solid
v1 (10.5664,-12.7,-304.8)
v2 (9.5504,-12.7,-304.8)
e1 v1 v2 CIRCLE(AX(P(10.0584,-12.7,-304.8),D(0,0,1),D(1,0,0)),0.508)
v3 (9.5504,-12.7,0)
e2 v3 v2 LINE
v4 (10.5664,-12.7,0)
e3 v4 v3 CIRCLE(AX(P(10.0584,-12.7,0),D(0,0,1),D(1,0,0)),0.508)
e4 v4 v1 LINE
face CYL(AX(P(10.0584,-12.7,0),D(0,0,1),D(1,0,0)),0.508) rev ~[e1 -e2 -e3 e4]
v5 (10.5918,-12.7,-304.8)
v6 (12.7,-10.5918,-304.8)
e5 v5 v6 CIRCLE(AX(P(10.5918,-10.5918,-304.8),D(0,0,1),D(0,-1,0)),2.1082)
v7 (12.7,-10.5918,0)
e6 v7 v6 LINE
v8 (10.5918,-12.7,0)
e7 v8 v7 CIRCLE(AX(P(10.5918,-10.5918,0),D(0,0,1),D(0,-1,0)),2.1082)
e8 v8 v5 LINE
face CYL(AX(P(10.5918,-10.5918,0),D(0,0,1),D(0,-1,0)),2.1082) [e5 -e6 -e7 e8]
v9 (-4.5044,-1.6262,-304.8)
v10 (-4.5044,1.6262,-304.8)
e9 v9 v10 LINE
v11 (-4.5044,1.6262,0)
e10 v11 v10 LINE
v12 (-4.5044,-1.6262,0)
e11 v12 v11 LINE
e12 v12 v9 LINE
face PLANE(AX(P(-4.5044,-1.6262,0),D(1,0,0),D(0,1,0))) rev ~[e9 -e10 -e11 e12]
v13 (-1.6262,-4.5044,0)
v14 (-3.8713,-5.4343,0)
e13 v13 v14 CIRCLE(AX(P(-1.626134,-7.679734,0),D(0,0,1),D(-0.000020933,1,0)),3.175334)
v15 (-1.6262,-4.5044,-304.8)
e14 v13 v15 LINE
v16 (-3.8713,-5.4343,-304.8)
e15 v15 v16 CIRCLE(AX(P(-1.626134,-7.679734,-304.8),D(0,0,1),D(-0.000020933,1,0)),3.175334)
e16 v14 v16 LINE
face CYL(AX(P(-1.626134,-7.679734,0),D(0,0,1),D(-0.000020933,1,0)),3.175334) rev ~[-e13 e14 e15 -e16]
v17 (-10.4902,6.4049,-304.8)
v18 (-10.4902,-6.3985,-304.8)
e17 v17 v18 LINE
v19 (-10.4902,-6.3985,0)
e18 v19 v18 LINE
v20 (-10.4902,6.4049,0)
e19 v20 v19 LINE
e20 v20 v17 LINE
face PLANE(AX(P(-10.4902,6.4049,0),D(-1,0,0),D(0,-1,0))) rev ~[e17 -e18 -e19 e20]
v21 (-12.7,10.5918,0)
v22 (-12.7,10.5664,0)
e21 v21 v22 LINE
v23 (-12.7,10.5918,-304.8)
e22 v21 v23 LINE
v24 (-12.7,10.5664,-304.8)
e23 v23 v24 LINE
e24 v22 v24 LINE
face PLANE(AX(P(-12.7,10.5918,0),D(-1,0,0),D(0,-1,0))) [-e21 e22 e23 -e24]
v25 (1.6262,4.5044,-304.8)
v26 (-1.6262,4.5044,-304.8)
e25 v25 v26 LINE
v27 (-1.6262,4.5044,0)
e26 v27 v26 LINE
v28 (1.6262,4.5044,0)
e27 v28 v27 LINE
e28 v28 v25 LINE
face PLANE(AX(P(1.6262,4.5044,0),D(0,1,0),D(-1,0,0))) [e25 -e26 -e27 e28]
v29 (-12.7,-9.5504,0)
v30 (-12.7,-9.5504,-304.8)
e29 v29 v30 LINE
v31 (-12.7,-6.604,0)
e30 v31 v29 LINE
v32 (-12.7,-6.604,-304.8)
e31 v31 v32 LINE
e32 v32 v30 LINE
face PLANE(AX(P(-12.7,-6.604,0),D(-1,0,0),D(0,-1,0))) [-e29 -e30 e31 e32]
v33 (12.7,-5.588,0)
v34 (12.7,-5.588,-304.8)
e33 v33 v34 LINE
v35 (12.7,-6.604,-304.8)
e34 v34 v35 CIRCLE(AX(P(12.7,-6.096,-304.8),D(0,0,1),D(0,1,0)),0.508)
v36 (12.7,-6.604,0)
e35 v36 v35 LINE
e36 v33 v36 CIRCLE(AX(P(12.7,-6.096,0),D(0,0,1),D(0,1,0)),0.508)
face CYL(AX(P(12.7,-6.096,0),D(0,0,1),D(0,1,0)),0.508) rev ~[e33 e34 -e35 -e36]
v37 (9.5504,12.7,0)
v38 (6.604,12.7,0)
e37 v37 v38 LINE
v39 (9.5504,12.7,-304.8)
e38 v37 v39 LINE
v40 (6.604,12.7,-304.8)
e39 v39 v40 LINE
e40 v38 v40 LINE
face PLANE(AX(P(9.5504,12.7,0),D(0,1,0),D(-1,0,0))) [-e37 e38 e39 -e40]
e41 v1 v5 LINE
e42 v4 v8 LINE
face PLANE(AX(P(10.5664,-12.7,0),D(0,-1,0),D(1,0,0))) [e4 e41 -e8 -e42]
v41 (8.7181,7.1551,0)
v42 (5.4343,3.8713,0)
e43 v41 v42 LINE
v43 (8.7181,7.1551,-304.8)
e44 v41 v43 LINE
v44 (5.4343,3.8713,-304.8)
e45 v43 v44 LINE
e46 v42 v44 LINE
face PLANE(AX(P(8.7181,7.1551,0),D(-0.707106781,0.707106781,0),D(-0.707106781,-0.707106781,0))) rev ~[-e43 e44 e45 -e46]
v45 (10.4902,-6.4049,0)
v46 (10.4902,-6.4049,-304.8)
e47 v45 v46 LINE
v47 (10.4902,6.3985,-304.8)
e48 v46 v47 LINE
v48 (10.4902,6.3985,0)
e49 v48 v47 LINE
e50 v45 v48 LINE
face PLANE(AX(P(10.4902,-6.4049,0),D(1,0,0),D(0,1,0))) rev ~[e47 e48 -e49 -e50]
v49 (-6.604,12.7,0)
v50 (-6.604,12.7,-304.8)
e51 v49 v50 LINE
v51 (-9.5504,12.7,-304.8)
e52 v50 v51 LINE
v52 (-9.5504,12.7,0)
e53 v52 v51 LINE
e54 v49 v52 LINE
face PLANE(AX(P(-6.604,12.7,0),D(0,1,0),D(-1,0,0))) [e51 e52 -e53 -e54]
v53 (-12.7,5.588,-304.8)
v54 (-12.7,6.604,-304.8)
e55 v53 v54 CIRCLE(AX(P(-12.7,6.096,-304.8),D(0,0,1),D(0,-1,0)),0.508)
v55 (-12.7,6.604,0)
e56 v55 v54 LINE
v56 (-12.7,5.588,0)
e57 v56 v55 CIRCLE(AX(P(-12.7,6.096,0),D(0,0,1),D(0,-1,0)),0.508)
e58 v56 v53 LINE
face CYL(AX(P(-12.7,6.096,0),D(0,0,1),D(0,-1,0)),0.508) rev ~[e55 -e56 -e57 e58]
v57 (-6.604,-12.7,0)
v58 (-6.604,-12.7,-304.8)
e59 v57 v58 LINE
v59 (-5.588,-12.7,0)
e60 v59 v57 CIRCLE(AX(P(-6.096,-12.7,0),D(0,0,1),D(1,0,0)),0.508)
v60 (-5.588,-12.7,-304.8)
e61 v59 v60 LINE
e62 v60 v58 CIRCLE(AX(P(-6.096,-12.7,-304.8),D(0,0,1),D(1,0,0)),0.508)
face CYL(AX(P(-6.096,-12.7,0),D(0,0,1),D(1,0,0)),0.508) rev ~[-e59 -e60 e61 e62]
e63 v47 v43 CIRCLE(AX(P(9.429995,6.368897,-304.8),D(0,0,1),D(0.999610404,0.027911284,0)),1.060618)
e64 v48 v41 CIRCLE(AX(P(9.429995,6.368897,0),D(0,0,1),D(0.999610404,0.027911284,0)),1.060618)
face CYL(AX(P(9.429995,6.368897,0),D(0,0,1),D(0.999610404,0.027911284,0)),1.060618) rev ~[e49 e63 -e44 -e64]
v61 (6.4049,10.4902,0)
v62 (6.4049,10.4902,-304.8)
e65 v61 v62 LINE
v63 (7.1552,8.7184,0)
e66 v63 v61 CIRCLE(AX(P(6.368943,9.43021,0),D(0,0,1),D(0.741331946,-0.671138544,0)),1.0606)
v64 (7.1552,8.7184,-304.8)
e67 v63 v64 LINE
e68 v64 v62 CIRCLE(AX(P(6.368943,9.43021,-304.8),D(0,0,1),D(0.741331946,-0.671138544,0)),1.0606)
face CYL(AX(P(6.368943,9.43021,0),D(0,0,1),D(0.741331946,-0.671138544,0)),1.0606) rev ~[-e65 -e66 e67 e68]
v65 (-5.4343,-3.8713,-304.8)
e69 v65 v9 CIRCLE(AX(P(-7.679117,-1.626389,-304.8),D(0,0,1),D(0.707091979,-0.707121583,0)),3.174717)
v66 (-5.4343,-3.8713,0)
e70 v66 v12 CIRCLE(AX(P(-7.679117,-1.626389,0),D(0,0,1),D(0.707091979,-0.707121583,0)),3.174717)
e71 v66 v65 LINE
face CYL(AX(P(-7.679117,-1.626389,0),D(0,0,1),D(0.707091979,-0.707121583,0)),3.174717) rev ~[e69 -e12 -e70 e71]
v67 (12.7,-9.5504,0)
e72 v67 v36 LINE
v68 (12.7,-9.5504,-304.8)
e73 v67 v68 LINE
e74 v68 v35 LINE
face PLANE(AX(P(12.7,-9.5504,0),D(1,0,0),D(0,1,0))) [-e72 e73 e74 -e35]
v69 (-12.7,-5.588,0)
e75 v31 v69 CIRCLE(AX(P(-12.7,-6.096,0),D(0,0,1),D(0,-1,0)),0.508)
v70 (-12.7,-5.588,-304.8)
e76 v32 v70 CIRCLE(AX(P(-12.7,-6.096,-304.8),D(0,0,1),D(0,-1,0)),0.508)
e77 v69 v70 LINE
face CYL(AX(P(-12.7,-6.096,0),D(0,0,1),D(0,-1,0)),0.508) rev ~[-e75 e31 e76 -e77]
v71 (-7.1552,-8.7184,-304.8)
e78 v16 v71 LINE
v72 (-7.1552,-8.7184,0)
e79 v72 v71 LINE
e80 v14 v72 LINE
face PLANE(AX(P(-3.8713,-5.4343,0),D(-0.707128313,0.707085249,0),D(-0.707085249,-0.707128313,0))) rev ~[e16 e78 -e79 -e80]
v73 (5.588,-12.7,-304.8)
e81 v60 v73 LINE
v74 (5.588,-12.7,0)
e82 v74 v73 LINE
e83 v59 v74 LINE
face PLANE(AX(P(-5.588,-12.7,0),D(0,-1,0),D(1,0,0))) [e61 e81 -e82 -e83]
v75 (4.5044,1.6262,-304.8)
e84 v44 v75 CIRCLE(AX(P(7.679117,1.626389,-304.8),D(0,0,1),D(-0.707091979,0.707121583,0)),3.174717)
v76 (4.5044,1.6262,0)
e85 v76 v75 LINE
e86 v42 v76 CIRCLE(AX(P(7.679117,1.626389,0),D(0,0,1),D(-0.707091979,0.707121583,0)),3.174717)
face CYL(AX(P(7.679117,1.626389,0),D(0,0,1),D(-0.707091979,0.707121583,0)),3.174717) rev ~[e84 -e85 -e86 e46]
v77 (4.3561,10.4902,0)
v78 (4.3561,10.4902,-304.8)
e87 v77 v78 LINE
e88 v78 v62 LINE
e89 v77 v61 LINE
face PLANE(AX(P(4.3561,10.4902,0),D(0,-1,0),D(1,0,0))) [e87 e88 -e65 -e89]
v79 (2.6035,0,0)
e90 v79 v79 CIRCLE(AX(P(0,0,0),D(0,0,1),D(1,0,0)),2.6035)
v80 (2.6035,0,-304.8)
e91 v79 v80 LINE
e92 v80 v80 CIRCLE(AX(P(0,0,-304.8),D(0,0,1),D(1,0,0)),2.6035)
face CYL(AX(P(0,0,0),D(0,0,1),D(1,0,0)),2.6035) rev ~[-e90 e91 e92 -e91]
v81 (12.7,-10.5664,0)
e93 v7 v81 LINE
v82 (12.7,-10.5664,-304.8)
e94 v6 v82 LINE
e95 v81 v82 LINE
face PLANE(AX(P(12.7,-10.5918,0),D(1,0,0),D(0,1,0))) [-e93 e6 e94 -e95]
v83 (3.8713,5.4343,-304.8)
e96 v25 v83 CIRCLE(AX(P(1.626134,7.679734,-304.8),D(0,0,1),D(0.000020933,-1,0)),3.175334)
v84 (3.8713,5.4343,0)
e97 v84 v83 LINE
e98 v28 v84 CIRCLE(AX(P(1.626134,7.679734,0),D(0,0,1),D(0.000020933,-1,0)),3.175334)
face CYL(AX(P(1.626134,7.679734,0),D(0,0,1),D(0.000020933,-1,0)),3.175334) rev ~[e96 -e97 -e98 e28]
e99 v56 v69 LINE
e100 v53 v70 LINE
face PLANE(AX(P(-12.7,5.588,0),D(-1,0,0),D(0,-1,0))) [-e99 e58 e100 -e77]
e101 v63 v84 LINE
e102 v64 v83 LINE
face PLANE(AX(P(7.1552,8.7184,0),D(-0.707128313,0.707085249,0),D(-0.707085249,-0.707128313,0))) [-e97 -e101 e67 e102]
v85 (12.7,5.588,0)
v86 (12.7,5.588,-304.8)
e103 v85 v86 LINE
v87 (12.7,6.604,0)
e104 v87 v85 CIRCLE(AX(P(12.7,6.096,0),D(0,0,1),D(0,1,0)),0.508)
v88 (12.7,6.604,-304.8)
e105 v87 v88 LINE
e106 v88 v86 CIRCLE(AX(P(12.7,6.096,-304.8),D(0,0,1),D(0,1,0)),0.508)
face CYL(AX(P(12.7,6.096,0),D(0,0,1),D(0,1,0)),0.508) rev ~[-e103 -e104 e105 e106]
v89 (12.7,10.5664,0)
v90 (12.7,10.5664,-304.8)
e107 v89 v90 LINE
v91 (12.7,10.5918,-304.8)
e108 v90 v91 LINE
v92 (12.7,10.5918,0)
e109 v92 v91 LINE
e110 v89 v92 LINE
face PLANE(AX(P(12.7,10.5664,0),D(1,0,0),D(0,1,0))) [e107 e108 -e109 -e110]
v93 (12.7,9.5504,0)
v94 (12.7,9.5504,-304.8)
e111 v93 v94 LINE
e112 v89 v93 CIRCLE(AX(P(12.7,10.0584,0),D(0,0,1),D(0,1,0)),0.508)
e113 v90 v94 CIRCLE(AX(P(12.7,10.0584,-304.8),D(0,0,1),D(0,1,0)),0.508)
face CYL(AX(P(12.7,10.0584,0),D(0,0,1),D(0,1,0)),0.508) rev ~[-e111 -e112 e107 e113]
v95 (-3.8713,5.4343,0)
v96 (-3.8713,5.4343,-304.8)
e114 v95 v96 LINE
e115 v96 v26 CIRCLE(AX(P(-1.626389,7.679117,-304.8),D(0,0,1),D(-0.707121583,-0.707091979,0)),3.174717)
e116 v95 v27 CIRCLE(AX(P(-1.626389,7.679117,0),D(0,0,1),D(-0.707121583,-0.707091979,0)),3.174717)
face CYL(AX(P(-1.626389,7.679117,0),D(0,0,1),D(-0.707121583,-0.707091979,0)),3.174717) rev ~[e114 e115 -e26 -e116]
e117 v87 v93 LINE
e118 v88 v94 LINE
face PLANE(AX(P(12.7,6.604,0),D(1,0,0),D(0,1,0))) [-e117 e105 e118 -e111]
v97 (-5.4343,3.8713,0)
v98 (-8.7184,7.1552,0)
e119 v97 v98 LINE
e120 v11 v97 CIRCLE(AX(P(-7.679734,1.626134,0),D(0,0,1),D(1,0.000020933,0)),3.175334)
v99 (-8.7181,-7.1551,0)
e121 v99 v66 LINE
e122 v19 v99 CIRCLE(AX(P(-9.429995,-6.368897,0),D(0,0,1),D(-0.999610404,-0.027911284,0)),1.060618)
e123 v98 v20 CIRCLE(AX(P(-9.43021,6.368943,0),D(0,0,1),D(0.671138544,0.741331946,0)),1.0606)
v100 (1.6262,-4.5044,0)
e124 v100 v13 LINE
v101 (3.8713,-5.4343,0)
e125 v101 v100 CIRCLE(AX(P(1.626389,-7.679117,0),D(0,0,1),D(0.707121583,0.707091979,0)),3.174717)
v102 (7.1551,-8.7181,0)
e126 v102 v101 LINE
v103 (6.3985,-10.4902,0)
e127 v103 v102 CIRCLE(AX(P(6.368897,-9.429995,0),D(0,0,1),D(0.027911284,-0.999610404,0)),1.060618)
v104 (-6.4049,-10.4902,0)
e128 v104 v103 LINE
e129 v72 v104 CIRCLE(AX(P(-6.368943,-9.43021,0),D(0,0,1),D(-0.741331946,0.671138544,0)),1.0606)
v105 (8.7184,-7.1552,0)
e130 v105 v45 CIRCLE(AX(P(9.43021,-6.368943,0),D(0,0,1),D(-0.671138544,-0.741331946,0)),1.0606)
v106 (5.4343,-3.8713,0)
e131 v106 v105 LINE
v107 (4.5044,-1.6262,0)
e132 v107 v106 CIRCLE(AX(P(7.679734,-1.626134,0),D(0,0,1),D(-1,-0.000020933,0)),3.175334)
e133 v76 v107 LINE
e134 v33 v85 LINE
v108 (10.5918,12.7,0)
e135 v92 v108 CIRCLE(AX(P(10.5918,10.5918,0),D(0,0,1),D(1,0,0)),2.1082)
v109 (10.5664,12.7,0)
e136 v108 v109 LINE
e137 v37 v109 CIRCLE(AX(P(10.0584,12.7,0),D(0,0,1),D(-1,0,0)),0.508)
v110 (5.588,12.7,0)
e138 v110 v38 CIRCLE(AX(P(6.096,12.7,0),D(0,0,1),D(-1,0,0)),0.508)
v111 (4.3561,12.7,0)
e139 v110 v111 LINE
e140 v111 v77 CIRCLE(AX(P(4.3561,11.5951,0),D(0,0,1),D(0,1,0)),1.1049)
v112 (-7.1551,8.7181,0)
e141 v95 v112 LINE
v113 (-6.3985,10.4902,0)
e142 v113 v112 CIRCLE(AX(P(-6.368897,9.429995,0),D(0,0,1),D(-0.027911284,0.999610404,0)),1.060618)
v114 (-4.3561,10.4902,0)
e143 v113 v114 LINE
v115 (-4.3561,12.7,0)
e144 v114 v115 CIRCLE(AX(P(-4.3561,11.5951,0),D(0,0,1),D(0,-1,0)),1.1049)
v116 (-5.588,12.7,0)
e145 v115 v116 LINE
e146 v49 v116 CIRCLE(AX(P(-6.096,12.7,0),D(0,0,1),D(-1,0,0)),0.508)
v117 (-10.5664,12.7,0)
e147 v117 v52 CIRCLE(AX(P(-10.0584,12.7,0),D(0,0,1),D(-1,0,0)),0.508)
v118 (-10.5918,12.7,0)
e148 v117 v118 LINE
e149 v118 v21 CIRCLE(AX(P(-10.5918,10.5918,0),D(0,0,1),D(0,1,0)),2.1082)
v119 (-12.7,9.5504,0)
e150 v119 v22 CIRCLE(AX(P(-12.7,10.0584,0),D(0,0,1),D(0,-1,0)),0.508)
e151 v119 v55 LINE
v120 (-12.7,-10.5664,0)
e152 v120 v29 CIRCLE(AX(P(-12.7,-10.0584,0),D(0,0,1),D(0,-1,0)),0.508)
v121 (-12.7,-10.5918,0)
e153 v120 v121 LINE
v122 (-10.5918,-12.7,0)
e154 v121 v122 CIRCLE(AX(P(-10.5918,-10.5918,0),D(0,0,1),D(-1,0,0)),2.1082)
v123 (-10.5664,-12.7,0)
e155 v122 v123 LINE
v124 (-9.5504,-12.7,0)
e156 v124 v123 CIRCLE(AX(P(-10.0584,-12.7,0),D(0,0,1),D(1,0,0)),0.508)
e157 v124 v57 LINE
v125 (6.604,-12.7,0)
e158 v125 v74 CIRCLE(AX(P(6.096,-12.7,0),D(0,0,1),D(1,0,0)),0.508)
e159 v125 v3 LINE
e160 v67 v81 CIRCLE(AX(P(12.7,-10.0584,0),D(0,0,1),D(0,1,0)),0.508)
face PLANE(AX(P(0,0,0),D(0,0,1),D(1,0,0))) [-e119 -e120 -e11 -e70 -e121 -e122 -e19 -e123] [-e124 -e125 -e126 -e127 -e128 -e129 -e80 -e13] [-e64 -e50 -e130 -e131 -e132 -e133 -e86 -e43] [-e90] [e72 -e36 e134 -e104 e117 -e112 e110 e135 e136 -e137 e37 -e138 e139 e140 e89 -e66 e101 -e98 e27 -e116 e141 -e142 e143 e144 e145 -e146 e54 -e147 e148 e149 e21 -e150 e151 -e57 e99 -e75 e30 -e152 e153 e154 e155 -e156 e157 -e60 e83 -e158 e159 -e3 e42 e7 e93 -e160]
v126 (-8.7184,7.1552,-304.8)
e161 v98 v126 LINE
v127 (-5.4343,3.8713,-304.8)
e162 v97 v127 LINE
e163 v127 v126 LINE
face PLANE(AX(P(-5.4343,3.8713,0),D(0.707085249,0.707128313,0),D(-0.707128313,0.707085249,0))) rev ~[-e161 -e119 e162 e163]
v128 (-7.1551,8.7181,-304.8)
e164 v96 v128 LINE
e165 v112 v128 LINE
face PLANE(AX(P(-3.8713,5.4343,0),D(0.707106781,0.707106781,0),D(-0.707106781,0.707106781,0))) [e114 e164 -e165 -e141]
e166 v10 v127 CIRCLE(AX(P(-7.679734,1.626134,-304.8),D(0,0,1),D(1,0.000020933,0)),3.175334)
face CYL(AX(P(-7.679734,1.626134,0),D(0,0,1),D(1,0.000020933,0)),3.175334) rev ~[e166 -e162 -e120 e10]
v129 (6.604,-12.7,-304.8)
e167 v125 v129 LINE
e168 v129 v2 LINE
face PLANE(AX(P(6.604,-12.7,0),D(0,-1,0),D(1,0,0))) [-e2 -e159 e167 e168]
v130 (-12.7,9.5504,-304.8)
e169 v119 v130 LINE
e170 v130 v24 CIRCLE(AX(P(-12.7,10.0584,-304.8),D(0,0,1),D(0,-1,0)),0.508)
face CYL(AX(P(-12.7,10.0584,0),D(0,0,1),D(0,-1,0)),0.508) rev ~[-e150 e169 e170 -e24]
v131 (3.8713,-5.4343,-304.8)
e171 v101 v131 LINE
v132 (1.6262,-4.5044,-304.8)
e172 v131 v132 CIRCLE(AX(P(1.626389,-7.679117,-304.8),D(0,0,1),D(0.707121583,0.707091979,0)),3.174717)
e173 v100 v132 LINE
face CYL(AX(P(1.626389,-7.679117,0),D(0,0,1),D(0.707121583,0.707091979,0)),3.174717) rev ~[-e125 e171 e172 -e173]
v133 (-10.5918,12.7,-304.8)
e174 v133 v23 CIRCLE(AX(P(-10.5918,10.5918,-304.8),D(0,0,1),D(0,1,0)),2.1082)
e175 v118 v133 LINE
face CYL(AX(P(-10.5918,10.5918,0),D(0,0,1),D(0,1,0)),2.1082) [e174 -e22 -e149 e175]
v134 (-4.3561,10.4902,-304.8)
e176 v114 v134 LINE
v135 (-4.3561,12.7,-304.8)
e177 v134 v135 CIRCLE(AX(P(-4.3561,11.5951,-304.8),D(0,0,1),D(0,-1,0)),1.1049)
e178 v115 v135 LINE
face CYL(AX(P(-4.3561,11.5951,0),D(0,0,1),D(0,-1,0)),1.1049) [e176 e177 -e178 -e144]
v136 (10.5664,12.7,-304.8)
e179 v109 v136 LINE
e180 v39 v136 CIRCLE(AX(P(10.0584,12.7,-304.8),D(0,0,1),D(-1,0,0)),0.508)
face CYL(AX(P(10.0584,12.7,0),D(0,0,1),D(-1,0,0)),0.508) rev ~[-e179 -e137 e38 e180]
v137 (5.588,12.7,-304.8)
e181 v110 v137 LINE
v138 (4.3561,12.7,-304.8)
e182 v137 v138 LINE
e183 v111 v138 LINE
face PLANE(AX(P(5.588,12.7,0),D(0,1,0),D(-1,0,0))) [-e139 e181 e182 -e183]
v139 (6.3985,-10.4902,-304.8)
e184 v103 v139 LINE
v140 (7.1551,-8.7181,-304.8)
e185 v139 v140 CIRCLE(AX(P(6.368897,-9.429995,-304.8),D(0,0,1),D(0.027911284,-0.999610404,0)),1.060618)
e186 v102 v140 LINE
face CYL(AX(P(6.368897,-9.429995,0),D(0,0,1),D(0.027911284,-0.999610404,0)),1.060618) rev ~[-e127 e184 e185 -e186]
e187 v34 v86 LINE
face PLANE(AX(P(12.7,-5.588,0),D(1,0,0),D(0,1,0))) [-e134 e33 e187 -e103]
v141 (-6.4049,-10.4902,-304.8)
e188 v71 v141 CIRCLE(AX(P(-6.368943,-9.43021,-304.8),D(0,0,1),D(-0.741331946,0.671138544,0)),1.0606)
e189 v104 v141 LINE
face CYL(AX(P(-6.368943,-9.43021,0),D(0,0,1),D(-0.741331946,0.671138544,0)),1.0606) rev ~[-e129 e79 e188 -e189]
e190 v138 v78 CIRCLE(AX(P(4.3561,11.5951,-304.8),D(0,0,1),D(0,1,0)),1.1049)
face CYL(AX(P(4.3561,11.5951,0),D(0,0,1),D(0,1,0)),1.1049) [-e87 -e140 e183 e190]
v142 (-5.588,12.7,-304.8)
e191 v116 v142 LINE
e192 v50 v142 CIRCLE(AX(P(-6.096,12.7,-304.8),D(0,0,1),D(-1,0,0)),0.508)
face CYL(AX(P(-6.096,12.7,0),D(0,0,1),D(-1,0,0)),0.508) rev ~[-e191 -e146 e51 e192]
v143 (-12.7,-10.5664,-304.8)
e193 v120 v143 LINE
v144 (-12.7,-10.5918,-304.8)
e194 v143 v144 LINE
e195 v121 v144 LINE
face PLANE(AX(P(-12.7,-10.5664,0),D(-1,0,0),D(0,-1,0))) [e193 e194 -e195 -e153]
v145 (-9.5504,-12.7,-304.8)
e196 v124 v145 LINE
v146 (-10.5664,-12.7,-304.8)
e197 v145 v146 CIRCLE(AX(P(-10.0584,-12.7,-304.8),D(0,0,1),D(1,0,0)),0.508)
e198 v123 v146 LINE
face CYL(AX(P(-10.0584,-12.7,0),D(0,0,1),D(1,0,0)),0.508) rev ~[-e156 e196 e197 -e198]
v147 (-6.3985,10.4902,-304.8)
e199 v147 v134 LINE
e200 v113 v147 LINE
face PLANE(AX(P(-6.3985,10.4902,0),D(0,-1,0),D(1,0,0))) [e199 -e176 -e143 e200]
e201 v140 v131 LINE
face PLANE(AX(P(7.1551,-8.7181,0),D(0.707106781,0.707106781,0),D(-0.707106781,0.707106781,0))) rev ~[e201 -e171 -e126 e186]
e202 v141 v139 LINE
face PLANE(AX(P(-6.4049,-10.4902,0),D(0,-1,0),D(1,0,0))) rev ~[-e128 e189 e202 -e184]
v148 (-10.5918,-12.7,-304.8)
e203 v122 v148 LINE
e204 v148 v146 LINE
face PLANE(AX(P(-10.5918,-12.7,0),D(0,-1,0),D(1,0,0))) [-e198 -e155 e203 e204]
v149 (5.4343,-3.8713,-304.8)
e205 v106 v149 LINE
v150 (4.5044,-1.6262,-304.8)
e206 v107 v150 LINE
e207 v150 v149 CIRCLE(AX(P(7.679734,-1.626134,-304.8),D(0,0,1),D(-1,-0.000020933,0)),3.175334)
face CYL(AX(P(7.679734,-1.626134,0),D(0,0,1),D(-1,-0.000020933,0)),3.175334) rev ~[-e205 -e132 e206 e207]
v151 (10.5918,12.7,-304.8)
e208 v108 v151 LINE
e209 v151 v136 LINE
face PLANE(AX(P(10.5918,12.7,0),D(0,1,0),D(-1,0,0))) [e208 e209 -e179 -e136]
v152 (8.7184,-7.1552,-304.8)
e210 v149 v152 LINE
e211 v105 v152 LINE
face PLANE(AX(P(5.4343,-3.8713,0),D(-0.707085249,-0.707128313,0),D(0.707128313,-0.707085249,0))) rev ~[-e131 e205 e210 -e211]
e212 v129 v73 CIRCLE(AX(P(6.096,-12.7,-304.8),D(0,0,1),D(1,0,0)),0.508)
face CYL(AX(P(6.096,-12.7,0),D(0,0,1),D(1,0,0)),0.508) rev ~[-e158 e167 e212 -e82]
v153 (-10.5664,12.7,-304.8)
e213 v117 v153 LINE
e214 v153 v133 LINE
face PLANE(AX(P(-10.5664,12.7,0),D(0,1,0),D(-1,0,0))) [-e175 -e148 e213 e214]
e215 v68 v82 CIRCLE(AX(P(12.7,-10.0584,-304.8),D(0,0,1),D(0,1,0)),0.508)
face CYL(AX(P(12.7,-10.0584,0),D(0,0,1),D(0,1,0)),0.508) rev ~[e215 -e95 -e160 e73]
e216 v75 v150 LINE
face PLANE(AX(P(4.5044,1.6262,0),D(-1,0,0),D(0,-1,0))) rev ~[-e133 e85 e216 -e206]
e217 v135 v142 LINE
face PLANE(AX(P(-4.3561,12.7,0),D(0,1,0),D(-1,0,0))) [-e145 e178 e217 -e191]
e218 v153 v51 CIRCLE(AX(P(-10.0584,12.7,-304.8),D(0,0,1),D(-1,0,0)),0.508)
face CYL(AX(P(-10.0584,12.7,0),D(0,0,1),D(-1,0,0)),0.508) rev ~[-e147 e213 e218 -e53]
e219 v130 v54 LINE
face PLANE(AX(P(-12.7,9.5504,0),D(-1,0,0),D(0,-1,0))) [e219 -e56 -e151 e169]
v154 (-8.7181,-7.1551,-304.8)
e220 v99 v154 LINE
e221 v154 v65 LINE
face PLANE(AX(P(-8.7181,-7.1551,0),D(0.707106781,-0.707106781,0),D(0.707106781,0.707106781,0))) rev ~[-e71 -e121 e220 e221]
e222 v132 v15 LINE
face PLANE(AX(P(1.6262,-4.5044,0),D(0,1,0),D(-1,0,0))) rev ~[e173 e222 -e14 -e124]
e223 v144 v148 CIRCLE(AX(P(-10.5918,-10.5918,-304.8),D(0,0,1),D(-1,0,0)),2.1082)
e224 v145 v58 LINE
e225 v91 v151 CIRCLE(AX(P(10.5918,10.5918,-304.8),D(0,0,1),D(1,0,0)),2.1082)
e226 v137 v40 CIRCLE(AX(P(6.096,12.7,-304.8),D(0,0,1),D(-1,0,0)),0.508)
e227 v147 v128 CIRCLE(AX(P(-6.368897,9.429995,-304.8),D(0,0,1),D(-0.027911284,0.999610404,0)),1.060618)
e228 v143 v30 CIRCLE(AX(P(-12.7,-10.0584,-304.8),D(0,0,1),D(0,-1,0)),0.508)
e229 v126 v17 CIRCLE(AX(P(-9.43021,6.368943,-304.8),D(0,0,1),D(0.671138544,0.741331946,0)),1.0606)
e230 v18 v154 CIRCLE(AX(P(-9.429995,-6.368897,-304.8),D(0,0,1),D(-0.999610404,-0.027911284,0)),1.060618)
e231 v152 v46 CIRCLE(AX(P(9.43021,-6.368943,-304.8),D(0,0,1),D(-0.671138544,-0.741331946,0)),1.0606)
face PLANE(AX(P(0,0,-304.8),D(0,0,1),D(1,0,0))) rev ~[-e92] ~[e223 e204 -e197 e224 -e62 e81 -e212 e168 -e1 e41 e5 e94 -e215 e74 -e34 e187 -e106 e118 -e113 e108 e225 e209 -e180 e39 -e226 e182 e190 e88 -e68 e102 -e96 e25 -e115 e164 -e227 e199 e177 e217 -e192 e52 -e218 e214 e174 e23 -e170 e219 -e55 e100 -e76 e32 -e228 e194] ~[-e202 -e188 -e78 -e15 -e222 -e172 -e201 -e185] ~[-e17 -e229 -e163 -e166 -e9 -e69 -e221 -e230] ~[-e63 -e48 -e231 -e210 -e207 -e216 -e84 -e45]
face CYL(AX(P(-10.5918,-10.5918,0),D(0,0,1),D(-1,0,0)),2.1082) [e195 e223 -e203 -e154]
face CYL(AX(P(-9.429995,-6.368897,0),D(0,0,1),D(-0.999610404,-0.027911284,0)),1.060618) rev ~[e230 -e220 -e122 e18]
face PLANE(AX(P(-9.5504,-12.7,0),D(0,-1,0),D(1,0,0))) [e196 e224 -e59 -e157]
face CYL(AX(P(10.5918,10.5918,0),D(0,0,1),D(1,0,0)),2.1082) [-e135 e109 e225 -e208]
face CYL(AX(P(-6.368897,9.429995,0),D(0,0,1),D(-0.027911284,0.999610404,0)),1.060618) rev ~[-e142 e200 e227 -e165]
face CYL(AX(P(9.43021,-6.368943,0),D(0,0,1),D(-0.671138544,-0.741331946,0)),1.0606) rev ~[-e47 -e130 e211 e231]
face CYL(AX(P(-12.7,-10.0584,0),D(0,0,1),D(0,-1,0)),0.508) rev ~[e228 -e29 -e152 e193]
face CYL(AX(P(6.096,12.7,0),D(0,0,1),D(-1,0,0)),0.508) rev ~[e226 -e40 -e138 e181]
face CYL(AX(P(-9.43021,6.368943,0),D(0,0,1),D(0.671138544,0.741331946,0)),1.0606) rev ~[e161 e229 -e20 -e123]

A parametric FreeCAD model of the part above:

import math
import FreeCAD as App
import Part
import Sketcher
from FreeCAD import Vector
Q = App.Units.Quantity

doc = App.newDocument("Part")
body = doc.addObject("PartDesign::Body", "Body")

sketch1 = body.newObject("Sketcher::SketchObject", "Sketch")
sketch1.AttachmentSupport = (doc.getObject("XY_Plane"), [""])
sketch1.MapMode = "FlatFace"
sketch1.addGeometry([
    Part.ArcOfCircle(Part.Circle(Vector(12.7, -10.0584, 0), Vector(0, 0, 1), 0.508), math.radians(90), math.radians(270)),
    Part.LineSegment(Vector(12.7, -9.5504, 0), Vector(12.7, -6.604, 0)),
    Part.ArcOfCircle(Part.Circle(Vector(12.7, -6.096, 0), Vector(0, 0, 1), 0.508), math.radians(90), math.radians(270)),
    Part.LineSegment(Vector(12.7, -5.588, 0), Vector(12.7, 5.588, 0)),
    Part.ArcOfCircle(Part.Circle(Vector(12.7, 6.096, 0), Vector(0, 0, 1), 0.508), math.radians(90), math.radians(270)),
    Part.LineSegment(Vector(12.7, 6.604, 0), Vector(12.7, 9.5504, 0)),
    Part.ArcOfCircle(Part.Circle(Vector(12.7, 10.0584, 0), Vector(0, 0, 1), 0.508), math.radians(90), math.radians(270)),
    Part.LineSegment(Vector(12.7, 10.5664, 0), Vector(12.7, 10.5918, 0)),
    Part.ArcOfCircle(Part.Circle(Vector(10.5918, 10.5918, 0), Vector(0, 0, 1), 2.1082), math.radians(0), math.radians(90)),
    Part.LineSegment(Vector(10.5918, 12.7, 0), Vector(10.5664, 12.7, 0)),
    Part.ArcOfCircle(Part.Circle(Vector(10.0584, 12.7, 0), Vector(0, 0, 1), 0.508), math.radians(180), math.radians(360)),
    Part.LineSegment(Vector(9.5504, 12.7, 0), Vector(6.604, 12.7, 0)),
    Part.ArcOfCircle(Part.Circle(Vector(6.096, 12.7, 0), Vector(0, 0, 1), 0.508), math.radians(180), math.radians(360)),
    Part.LineSegment(Vector(5.588, 12.7, 0), Vector(4.3561, 12.7, 0)),
    Part.ArcOfCircle(Part.Circle(Vector(4.3561, 11.5951, 0), Vector(0, 0, 1), 1.1049), math.radians(90), math.radians(270)),
    Part.LineSegment(Vector(4.3561, 10.4902, 0), Vector(6.4049, 10.4902, 0)),
    Part.ArcOfCircle(Part.Circle(Vector(6.369, 9.4302, 0), Vector(0, 0, 1), 1.060552), math.radians(-42.156671), math.radians(88.060252)),
    Part.LineSegment(Vector(7.1552, 8.7184, 0), Vector(3.8713, 5.4343, 0)),
    Part.ArcOfCircle(Part.Circle(Vector(1.6262, 7.6794, 0), Vector(0, 0, 1), 3.175), math.radians(-90), math.radians(-45)),
    Part.LineSegment(Vector(1.6262, 4.5044, 0), Vector(-1.6262, 4.5044, 0)),
    Part.ArcOfCircle(Part.Circle(Vector(-1.6262, 7.6794, 0), Vector(0, 0, 1), 3.175051), math.radians(-135), math.radians(-90)),
    Part.LineSegment(Vector(-3.8713, 5.4343, 0), Vector(-7.1551, 8.7181, 0)),
    Part.ArcOfCircle(Part.Circle(Vector(-6.3689, 9.43, 0), Vector(0, 0, 1), 1.060613), math.radians(91.59924), math.radians(222.160676)),
    Part.LineSegment(Vector(-6.3985, 10.4902, 0), Vector(-4.3561, 10.4902, 0)),
    Part.ArcOfCircle(Part.Circle(Vector(-4.3561, 11.5951, 0), Vector(0, 0, 1), 1.1049), math.radians(-90), math.radians(90)),
    Part.LineSegment(Vector(-4.3561, 12.7, 0), Vector(-5.588, 12.7, 0)),
    Part.ArcOfCircle(Part.Circle(Vector(-6.096, 12.7, 0), Vector(0, 0, 1), 0.508), math.radians(180), math.radians(360)),
    Part.LineSegment(Vector(-6.604, 12.7, 0), Vector(-9.5504, 12.7, 0)),
    Part.ArcOfCircle(Part.Circle(Vector(-10.0584, 12.7, 0), Vector(0, 0, 1), 0.508), math.radians(180), math.radians(360)),
    Part.LineSegment(Vector(-10.5664, 12.7, 0), Vector(-10.5918, 12.7, 0)),
    Part.ArcOfCircle(Part.Circle(Vector(-10.5918, 10.5918, 0), Vector(0, 0, 1), 2.1082), math.radians(90), math.radians(180)),
    Part.LineSegment(Vector(-12.7, 10.5918, 0), Vector(-12.7, 10.5664, 0)),
    Part.ArcOfCircle(Part.Circle(Vector(-12.7, 10.0584, 0), Vector(0, 0, 1), 0.508), math.radians(-90), math.radians(90)),
    Part.LineSegment(Vector(-12.7, 9.5504, 0), Vector(-12.7, 6.604, 0)),
    Part.ArcOfCircle(Part.Circle(Vector(-12.7, 6.096, 0), Vector(0, 0, 1), 0.508), math.radians(-90), math.radians(90)),
    Part.LineSegment(Vector(-12.7, 5.588, 0), Vector(-12.7, -5.588, 0)),
    Part.ArcOfCircle(Part.Circle(Vector(-12.7, -6.096, 0), Vector(0, 0, 1), 0.508), math.radians(-90), math.radians(90)),
    Part.LineSegment(Vector(-12.7, -6.604, 0), Vector(-12.7, -9.5504, 0)),
    Part.ArcOfCircle(Part.Circle(Vector(-12.7, -10.0584, 0), Vector(0, 0, 1), 0.508), math.radians(-90), math.radians(90)),
    Part.LineSegment(Vector(-12.7, -10.5664, 0), Vector(-12.7, -10.5918, 0)),
    Part.ArcOfCircle(Part.Circle(Vector(-10.5918, -10.5918, 0), Vector(0, 0, 1), 2.1082), math.radians(180), math.radians(270)),
    Part.LineSegment(Vector(-10.5918, -12.7, 0), Vector(-10.5664, -12.7, 0)),
    Part.ArcOfCircle(Part.Circle(Vector(-10.0584, -12.7, 0), Vector(0, 0, 1), 0.508), math.radians(0), math.radians(180)),
    Part.LineSegment(Vector(-9.5504, -12.7, 0), Vector(-6.604, -12.7, 0)),
    Part.ArcOfCircle(Part.Circle(Vector(-6.096, -12.7, 0), Vector(0, 0, 1), 0.508), math.radians(0), math.radians(180)),
    Part.LineSegment(Vector(-5.588, -12.7, 0), Vector(5.588, -12.7, 0)),
    Part.ArcOfCircle(Part.Circle(Vector(6.096, -12.7, 0), Vector(0, 0, 1), 0.508), math.radians(0), math.radians(180)),
    Part.LineSegment(Vector(6.604, -12.7, 0), Vector(9.5504, -12.7, 0)),
    Part.ArcOfCircle(Part.Circle(Vector(10.0584, -12.7, 0), Vector(0, 0, 1), 0.508), math.radians(0), math.radians(180)),
    Part.LineSegment(Vector(10.5664, -12.7, 0), Vector(10.5918, -12.7, 0)),
    Part.ArcOfCircle(Part.Circle(Vector(10.5918, -10.5918, 0), Vector(0, 0, 1), 2.1082), math.radians(-90), math.radians(0)),
    Part.LineSegment(Vector(12.7, -10.5918, 0), Vector(12.7, -10.5664, 0)),
    Part.ArcOfCircle(Part.Circle(Vector(-1.6262, -7.6794, 0), Vector(0, 0, 1), 3.175), math.radians(90), math.radians(135)),
    Part.LineSegment(Vector(-1.6262, -4.5044, 0), Vector(1.6262, -4.5044, 0)),
    Part.ArcOfCircle(Part.Circle(Vector(1.6262, -7.6794, 0), Vector(0, 0, 1), 3.175051), math.radians(45), math.radians(90)),
    Part.LineSegment(Vector(3.8713, -5.4343, 0), Vector(7.1551, -8.7181, 0)),
    Part.ArcOfCircle(Part.Circle(Vector(6.3689, -9.43, 0), Vector(0, 0, 1), 1.060613), math.radians(-88.40076), math.radians(42.160676)),
    Part.LineSegment(Vector(6.3985, -10.4902, 0), Vector(-6.4049, -10.4902, 0)),
    Part.ArcOfCircle(Part.Circle(Vector(-6.369, -9.4302, 0), Vector(0, 0, 1), 1.060552), math.radians(137.843329), math.radians(268.060252)),
    Part.LineSegment(Vector(-7.1552, -8.7184, 0), Vector(-3.8713, -5.4343, 0)),
    Part.Circle(Vector(0, 0, 0), Vector(0, 0, 1), 2.6035),
    Part.ArcOfCircle(Part.Circle(Vector(9.4302, -6.369, 0), Vector(0, 0, 1), 1.060552), math.radians(-132.156671), math.radians(-1.939748)),
    Part.LineSegment(Vector(8.7184, -7.1552, 0), Vector(5.4343, -3.8713, 0)),
    Part.ArcOfCircle(Part.Circle(Vector(7.6794, -1.6262, 0), Vector(0, 0, 1), 3.175), math.radians(180), math.radians(225)),
    Part.LineSegment(Vector(4.5044, -1.6262, 0), Vector(4.5044, 1.6262, 0)),
    Part.ArcOfCircle(Part.Circle(Vector(7.6794, 1.6262, 0), Vector(0, 0, 1), 3.175051), math.radians(135), math.radians(180)),
    Part.LineSegment(Vector(5.4343, 3.8713, 0), Vector(8.7181, 7.1551, 0)),
    Part.ArcOfCircle(Part.Circle(Vector(9.43, 6.3689, 0), Vector(0, 0, 1), 1.060613), math.radians(1.59924), math.radians(132.160676)),
    Part.LineSegment(Vector(10.4902, 6.3985, 0), Vector(10.4902, -6.4049, 0)),
    Part.ArcOfCircle(Part.Circle(Vector(-7.6794, 1.6262, 0), Vector(0, 0, 1), 3.175), math.radians(0), math.radians(45)),
    Part.LineSegment(Vector(-4.5044, 1.6262, 0), Vector(-4.5044, -1.6262, 0)),
    Part.ArcOfCircle(Part.Circle(Vector(-7.6794, -1.6262, 0), Vector(0, 0, 1), 3.175051), math.radians(-45), math.radians(0)),
    Part.LineSegment(Vector(-5.4343, -3.8713, 0), Vector(-8.7181, -7.1551, 0)),
    Part.ArcOfCircle(Part.Circle(Vector(-9.43, -6.3689, 0), Vector(0, 0, 1), 1.060613), math.radians(-178.40076), math.radians(-47.839324)),
    Part.LineSegment(Vector(-10.4902, -6.3985, 0), Vector(-10.4902, 6.4049, 0)),
    Part.ArcOfCircle(Part.Circle(Vector(-9.4302, 6.369, 0), Vector(0, 0, 1), 1.060552), math.radians(47.843329), math.radians(178.060252)),
    Part.LineSegment(Vector(-8.7184, 7.1552, 0), Vector(-5.4343, 3.8713, 0)),
], False)
sketch1.addConstraint([
    Sketcher.Constraint("Coincident", 0, 1, 1, 1),
    Sketcher.Constraint("Coincident", 1, 2, 2, 2),
    Sketcher.Constraint("Coincident", 2, 1, 3, 1),
    Sketcher.Constraint("Coincident", 3, 2, 4, 2),
    Sketcher.Constraint("Coincident", 4, 1, 5, 1),
    Sketcher.Constraint("Coincident", 5, 2, 6, 2),
    Sketcher.Constraint("Coincident", 6, 1, 7, 1),
    Sketcher.Constraint("Coincident", 7, 2, 8, 1),
    Sketcher.Constraint("Coincident", 8, 2, 9, 1),
    Sketcher.Constraint("Coincident", 9, 2, 10, 2),
    Sketcher.Constraint("Coincident", 10, 1, 11, 1),
    Sketcher.Constraint("Coincident", 11, 2, 12, 2),
    Sketcher.Constraint("Coincident", 12, 1, 13, 1),
    Sketcher.Constraint("Coincident", 13, 2, 14, 1),
    Sketcher.Constraint("Coincident", 14, 2, 15, 1),
    Sketcher.Constraint("Coincident", 15, 2, 16, 2),
    Sketcher.Constraint("Coincident", 16, 1, 17, 1),
    Sketcher.Constraint("Coincident", 17, 2, 18, 2),
    Sketcher.Constraint("Coincident", 18, 1, 19, 1),
    Sketcher.Constraint("Coincident", 19, 2, 20, 2),
    Sketcher.Constraint("Coincident", 20, 1, 21, 1),
    Sketcher.Constraint("Coincident", 21, 2, 22, 2),
    Sketcher.Constraint("Coincident", 22, 1, 23, 1),
    Sketcher.Constraint("Coincident", 23, 2, 24, 1),
    Sketcher.Constraint("Coincident", 24, 2, 25, 1),
    Sketcher.Constraint("Coincident", 25, 2, 26, 2),
    Sketcher.Constraint("Coincident", 26, 1, 27, 1),
    Sketcher.Constraint("Coincident", 27, 2, 28, 2),
    Sketcher.Constraint("Coincident", 28, 1, 29, 1),
    Sketcher.Constraint("Coincident", 29, 2, 30, 1),
    Sketcher.Constraint("Coincident", 30, 2, 31, 1),
    Sketcher.Constraint("Coincident", 31, 2, 32, 2),
    Sketcher.Constraint("Coincident", 32, 1, 33, 1),
    Sketcher.Constraint("Coincident", 33, 2, 34, 2),
    Sketcher.Constraint("Coincident", 34, 1, 35, 1),
    Sketcher.Constraint("Coincident", 35, 2, 36, 2),
    Sketcher.Constraint("Coincident", 36, 1, 37, 1),
    Sketcher.Constraint("Coincident", 37, 2, 38, 2),
    Sketcher.Constraint("Coincident", 38, 1, 39, 1),
    Sketcher.Constraint("Coincident", 39, 2, 40, 1),
    Sketcher.Constraint("Coincident", 40, 2, 41, 1),
    Sketcher.Constraint("Coincident", 41, 2, 42, 2),
    Sketcher.Constraint("Coincident", 42, 1, 43, 1),
    Sketcher.Constraint("Coincident", 43, 2, 44, 2),
    Sketcher.Constraint("Coincident", 44, 1, 45, 1),
    Sketcher.Constraint("Coincident", 45, 2, 46, 2),
    Sketcher.Constraint("Coincident", 46, 1, 47, 1),
    Sketcher.Constraint("Coincident", 47, 2, 48, 2),
    Sketcher.Constraint("Coincident", 48, 1, 49, 1),
    Sketcher.Constraint("Coincident", 49, 2, 50, 1),
    Sketcher.Constraint("Coincident", 50, 2, 51, 1),
    Sketcher.Constraint("Coincident", 51, 2, 0, 2),
    Sketcher.Constraint("Coincident", 52, 1, 53, 1),
    Sketcher.Constraint("Coincident", 53, 2, 54, 2),
    Sketcher.Constraint("Coincident", 54, 1, 55, 1),
    Sketcher.Constraint("Coincident", 55, 2, 56, 2),
    Sketcher.Constraint("Coincident", 56, 1, 57, 1),
    Sketcher.Constraint("Coincident", 57, 2, 58, 2),
    Sketcher.Constraint("Coincident", 58, 1, 59, 1),
    Sketcher.Constraint("Coincident", 59, 2, 52, 2),
    Sketcher.Constraint("Coincident", 61, 1, 62, 1),
    Sketcher.Constraint("Coincident", 62, 2, 63, 2),
    Sketcher.Constraint("Coincident", 63, 1, 64, 1),
    Sketcher.Constraint("Coincident", 64, 2, 65, 2),
    Sketcher.Constraint("Coincident", 65, 1, 66, 1),
    Sketcher.Constraint("Coincident", 66, 2, 67, 2),
    Sketcher.Constraint("Coincident", 67, 1, 68, 1),
    Sketcher.Constraint("Coincident", 68, 2, 61, 2),
    Sketcher.Constraint("Coincident", 69, 1, 70, 1),
    Sketcher.Constraint("Coincident", 70, 2, 71, 2),
    Sketcher.Constraint("Coincident", 71, 1, 72, 1),
    Sketcher.Constraint("Coincident", 72, 2, 73, 2),
    Sketcher.Constraint("Coincident", 73, 1, 74, 1),
    Sketcher.Constraint("Coincident", 74, 2, 75, 2),
    Sketcher.Constraint("Coincident", 75, 1, 76, 1),
    Sketcher.Constraint("Coincident", 76, 2, 69, 2),
    Sketcher.Constraint("Vertical", 1),
    Sketcher.Constraint("Vertical", 3),
    Sketcher.Constraint("Vertical", 5),
    Sketcher.Constraint("Vertical", 7),
    Sketcher.Constraint("Horizontal", 9),
    Sketcher.Constraint("Horizontal", 11),
    Sketcher.Constraint("Horizontal", 13),
    Sketcher.Constraint("Horizontal", 15),
    Sketcher.Constraint("Horizontal", 19),
    Sketcher.Constraint("Horizontal", 23),
    Sketcher.Constraint("Horizontal", 25),
    Sketcher.Constraint("Horizontal", 27),
    Sketcher.Constraint("Horizontal", 29),
    Sketcher.Constraint("Vertical", 31),
    Sketcher.Constraint("Vertical", 33),
    Sketcher.Constraint("Vertical", 35),
    Sketcher.Constraint("Vertical", 37),
    Sketcher.Constraint("Vertical", 39),
    Sketcher.Constraint("Horizontal", 41),
    Sketcher.Constraint("Horizontal", 43),
    Sketcher.Constraint("Horizontal", 45),
    Sketcher.Constraint("Horizontal", 47),
    Sketcher.Constraint("Horizontal", 49),
    Sketcher.Constraint("Vertical", 51),
    Sketcher.Constraint("Horizontal", 53),
    Sketcher.Constraint("Horizontal", 57),
    Sketcher.Constraint("Vertical", 64),
    Sketcher.Constraint("Vertical", 68),
    Sketcher.Constraint("Vertical", 70),
    Sketcher.Constraint("Vertical", 74),
    Sketcher.Constraint("Coincident", 60, 3, -1, 1),
    Sketcher.Constraint("Radius", 0, Q("0.02 in")),
    Sketcher.Constraint("Radius", 2, Q("0.02 in")),
    Sketcher.Constraint("Radius", 4, Q("0.02 in")),
    Sketcher.Constraint("Radius", 6, Q("0.02 in")),
    Sketcher.Constraint("Radius", 10, Q("0.02 in")),
    Sketcher.Constraint("Radius", 12, Q("0.02 in")),
    Sketcher.Constraint("Radius", 26, Q("0.02 in")),
    Sketcher.Constraint("Radius", 28, Q("0.02 in")),
    Sketcher.Constraint("Radius", 32, Q("0.02 in")),
    Sketcher.Constraint("Radius", 34, Q("0.02 in")),
    Sketcher.Constraint("Radius", 36, Q("0.02 in")),
    Sketcher.Constraint("Radius", 38, Q("0.02 in")),
    Sketcher.Constraint("Radius", 42, Q("0.02 in")),
    Sketcher.Constraint("Radius", 44, Q("0.02 in")),
    Sketcher.Constraint("Radius", 46, Q("0.02 in")),
    Sketcher.Constraint("Radius", 48, Q("0.02 in")),
    Sketcher.Constraint("Diameter", 60, Q("0.205 in")),
    Sketcher.Constraint("Radius", 8, Q("0.083 in")),
    Sketcher.Constraint("Radius", 18, Q("0.125 in")),
    Sketcher.Constraint("Radius", 20, Q("0.125 in")),
    Sketcher.Constraint("Radius", 30, Q("0.083 in")),
    Sketcher.Constraint("Radius", 40, Q("0.083 in")),
    Sketcher.Constraint("Radius", 50, Q("0.083 in")),
    Sketcher.Constraint("Radius", 52, Q("0.125 in")),
    Sketcher.Constraint("Radius", 54, Q("0.125 in")),
    Sketcher.Constraint("Radius", 63, Q("0.125 in")),
    Sketcher.Constraint("Radius", 65, Q("0.125 in")),
    Sketcher.Constraint("Radius", 69, Q("0.125 in")),
    Sketcher.Constraint("Radius", 71, Q("0.125 in")),
    Sketcher.Constraint("DistanceX", 45, 1, 45, 2, Q("0.44 in")),
    Sketcher.Constraint("DistanceY", 3, 1, 3, 2, Q("0.44 in")),
    Sketcher.Constraint("DistanceY", 35, 2, 35, 1, Q("0.44 in")),
    Sketcher.Constraint("DistanceX", -1, 1, 0, 3, Q("0.5 in")),
    Sketcher.Constraint("DistanceX", -1, 1, 2, 3, Q("0.5 in")),
    Sketcher.Constraint("DistanceX", -1, 1, 4, 3, Q("0.5 in")),
    Sketcher.Constraint("DistanceX", -1, 1, 6, 3, Q("0.5 in")),
    Sketcher.Constraint("DistanceY", -1, 1, 10, 3, Q("0.5 in")),
    Sketcher.Constraint("DistanceY", -1, 1, 12, 3, Q("0.5 in")),
    Sketcher.Constraint("DistanceY", -1, 1, 26, 3, Q("0.5 in")),
    Sketcher.Constraint("DistanceY", -1, 1, 28, 3, Q("0.5 in")),
    Sketcher.Constraint("DistanceX", 32, 3, -1, 1, Q("0.5 in")),
    Sketcher.Constraint("DistanceX", 34, 3, -1, 1, Q("0.5 in")),
    Sketcher.Constraint("DistanceX", 36, 3, -1, 1, Q("0.5 in")),
    Sketcher.Constraint("DistanceX", 38, 3, -1, 1, Q("0.5 in")),
    Sketcher.Constraint("DistanceY", 42, 3, -1, 1, Q("0.5 in")),
    Sketcher.Constraint("DistanceY", 44, 3, -1, 1, Q("0.5 in")),
    Sketcher.Constraint("DistanceY", 46, 3, -1, 1, Q("0.5 in")),
    Sketcher.Constraint("DistanceY", 48, 3, -1, 1, Q("0.5 in")),
    Sketcher.Constraint("DistanceX", -1, 1, 0, 1, Q("0.5 in")),
    Sketcher.Constraint("DistanceX", -1, 1, 2, 1, Q("0.5 in")),
    Sketcher.Constraint("DistanceX", -1, 1, 4, 1, Q("0.5 in")),
    Sketcher.Constraint("DistanceX", -1, 1, 6, 1, Q("0.5 in")),
    Sketcher.Constraint("DistanceY", -1, 1, 8, 2, Q("0.5 in")),
    Sketcher.Constraint("DistanceY", -1, 1, 10, 1, Q("0.5 in")),
    Sketcher.Constraint("DistanceY", -1, 1, 12, 1, Q("0.5 in")),
    Sketcher.Constraint("DistanceY", -1, 1, 24, 2, Q("0.5 in")),
    Sketcher.Constraint("DistanceY", -1, 1, 26, 1, Q("0.5 in")),
    Sketcher.Constraint("DistanceY", -1, 1, 28, 1, Q("0.5 in")),
    Sketcher.Constraint("DistanceX", 30, 2, -1, 1, Q("0.5 in")),
    Sketcher.Constraint("DistanceX", 32, 1, -1, 1, Q("0.5 in")),
    Sketcher.Constraint("DistanceX", 34, 1, -1, 1, Q("0.5 in")),
    Sketcher.Constraint("DistanceX", 36, 1, -1, 1, Q("0.5 in")),
    Sketcher.Constraint("DistanceX", 38, 1, -1, 1, Q("0.5 in")),
    Sketcher.Constraint("DistanceY", 40, 2, -1, 1, Q("0.5 in")),
    Sketcher.Constraint("DistanceY", 42, 1, -1, 1, Q("0.5 in")),
    Sketcher.Constraint("DistanceY", 44, 1, -1, 1, Q("0.5 in")),
    Sketcher.Constraint("DistanceY", 46, 1, -1, 1, Q("0.5 in")),
    Sketcher.Constraint("DistanceY", 48, 1, -1, 1, Q("0.5 in")),
    Sketcher.Constraint("DistanceX", -1, 1, 50, 2, Q("0.5 in")),
    Sketcher.Constraint("Radius", 14, Q("0.0435 in")),
    Sketcher.Constraint("Radius", 24, Q("0.0435 in")),
    Sketcher.Constraint("DistanceX", 9, 2, 9, 1, Q("0.001 in")),
    Sketcher.Constraint("DistanceX", 11, 2, 11, 1, Q("0.116 in")),
    Sketcher.Constraint("DistanceX", 27, 2, 27, 1, Q("0.116 in")),
    Sketcher.Constraint("DistanceX", 29, 2, 29, 1, Q("0.001 in")),
    Sketcher.Constraint("DistanceX", 41, 1, 41, 2, Q("0.001 in")),
    Sketcher.Constraint("DistanceX", 43, 1, 43, 2, Q("0.116 in")),
    Sketcher.Constraint("DistanceX", 47, 1, 47, 2, Q("0.116 in")),
    Sketcher.Constraint("DistanceX", 49, 1, 49, 2, Q("0.001 in")),
    Sketcher.Constraint("DistanceY", 1, 1, 1, 2, Q("0.116 in")),
    Sketcher.Constraint("DistanceY", 5, 1, 5, 2, Q("0.116 in")),
    Sketcher.Constraint("DistanceY", 7, 1, 7, 2, Q("0.001 in")),
    Sketcher.Constraint("DistanceY", 31, 2, 31, 1, Q("0.001 in")),
    Sketcher.Constraint("DistanceY", 33, 2, 33, 1, Q("0.116 in")),
    Sketcher.Constraint("DistanceY", 37, 2, 37, 1, Q("0.116 in")),
    Sketcher.Constraint("DistanceY", 39, 2, 39, 1, Q("0.001 in")),
    Sketcher.Constraint("DistanceY", 51, 1, 51, 2, Q("0.001 in")),
    Sketcher.Constraint("DistanceY", 2, 3, -1, 1, Q("0.24 in")),
    Sketcher.Constraint("DistanceX", -1, 1, 12, 3, Q("0.24 in")),
    Sketcher.Constraint("DistanceX", 26, 3, -1, 1, Q("0.24 in")),
    Sketcher.Constraint("DistanceY", -1, 1, 34, 3, Q("0.24 in")),
    Sketcher.Constraint("DistanceX", 44, 3, -1, 1, Q("0.24 in")),
    Sketcher.Constraint("Radius", 16, Q("1.0606 mm")),
    Sketcher.Constraint("Radius", 22, Q("1.0606 mm")),
    Sketcher.Constraint("Radius", 56, Q("1.0606 mm")),
    Sketcher.Constraint("Radius", 58, Q("1.0606 mm")),
    Sketcher.Constraint("Radius", 61, Q("1.0606 mm")),
    Sketcher.Constraint("Radius", 67, Q("1.0606 mm")),
    Sketcher.Constraint("Radius", 73, Q("1.0606 mm")),
    Sketcher.Constraint("Radius", 75, Q("1.0606 mm")),
    Sketcher.Constraint("DistanceX", 13, 2, 13, 1, Q("0.0485 in")),
    Sketcher.Constraint("DistanceX", 23, 1, 23, 2, Q("0.0804 in")),
    Sketcher.Constraint("DistanceX", 25, 2, 25, 1, Q("0.0485 in")),
    Sketcher.Constraint("DistanceY", 56, 1, -1, 1, Q("0.413 in")),
    Sketcher.Constraint("DistanceX", -1, 1, 67, 1, Q("0.413 in")),
    Sketcher.Constraint("DistanceX", 73, 1, -1, 1, Q("0.413 in")),
    Sketcher.Constraint("DistanceX", 15, 1, 15, 2, Q("2.0488 mm")),
    Sketcher.Constraint("DistanceX", 19, 2, 19, 1, Q("3.2524 mm")),
    Sketcher.Constraint("DistanceX", 53, 1, 53, 2, Q("3.2524 mm")),
    Sketcher.Constraint("DistanceX", 57, 2, 57, 1, Q("12.8034 mm")),
    Sketcher.Constraint("DistanceY", 64, 1, 64, 2, Q("3.2524 mm")),
    Sketcher.Constraint("DistanceY", 68, 2, 68, 1, Q("12.8034 mm")),
    Sketcher.Constraint("DistanceY", 70, 2, 70, 1, Q("3.2524 mm")),
    Sketcher.Constraint("DistanceY", 74, 1, 74, 2, Q("12.8034 mm")),
    Sketcher.Constraint("DistanceX", -1, 1, 14, 3, Q("0.1715 in")),
    Sketcher.Constraint("DistanceX", 24, 3, -1, 1, Q("0.1715 in")),
    Sketcher.Constraint("DistanceX", -1, 1, 14, 2, Q("0.1715 in")),
    Sketcher.Constraint("DistanceX", -1, 1, 16, 1, Q("0.2817 in")),
    Sketcher.Constraint("DistanceX", 21, 2, -1, 1, Q("0.2817 in")),
    Sketcher.Constraint("DistanceX", 22, 1, -1, 1, Q("0.2519 in")),
    Sketcher.Constraint("DistanceX", -1, 1, 55, 2, Q("0.2817 in")),
    Sketcher.Constraint("DistanceX", -1, 1, 56, 1, Q("0.2519 in")),
    Sketcher.Constraint("DistanceX", 58, 1, -1, 1, Q("0.2817 in")),
    Sketcher.Constraint("DistanceY", 61, 1, -1, 1, Q("0.2817 in")),
    Sketcher.Constraint("DistanceY", -1, 1, 66, 2, Q("0.2817 in")),
    Sketcher.Constraint("DistanceY", -1, 1, 67, 1, Q("0.2519 in")),
    Sketcher.Constraint("DistanceY", 72, 2, -1, 1, Q("0.2817 in")),
    Sketcher.Constraint("DistanceY", 73, 1, -1, 1, Q("0.2519 in")),
    Sketcher.Constraint("DistanceY", -1, 1, 75, 1, Q("0.2817 in")),
    Sketcher.Constraint("Distance", 17, Q("4.6443 mm")),
    Sketcher.Constraint("Distance", 21, Q("4.644 mm")),
    Sketcher.Constraint("Distance", 55, Q("4.644 mm")),
    Sketcher.Constraint("Distance", 59, Q("4.6443 mm")),
    Sketcher.Constraint("Distance", 62, Q("4.6443 mm")),
    Sketcher.Constraint("Distance", 66, Q("4.644 mm")),
    Sketcher.Constraint("Distance", 72, Q("4.644 mm")),
    Sketcher.Constraint("Distance", 76, Q("4.6443 mm")),
    Sketcher.Constraint("DistanceX", -1, 1, 16, 3, Q("6.369 mm")),
    Sketcher.Constraint("DistanceX", -1, 1, 18, 3, Q("1.6262 mm")),
    Sketcher.Constraint("DistanceY", -1, 1, 18, 3, Q("7.6794 mm")),
    Sketcher.Constraint("DistanceX", 20, 3, -1, 1, Q("1.6262 mm")),
    Sketcher.Constraint("DistanceX", 22, 3, -1, 1, Q("6.369 mm")),
    Sketcher.Constraint("DistanceX", 52, 3, -1, 1, Q("1.6262 mm")),
    Sketcher.Constraint("DistanceY", 52, 3, -1, 1, Q("7.6794 mm")),
    Sketcher.Constraint("DistanceX", -1, 1, 54, 3, Q("1.6262 mm")),
    Sketcher.Constraint("DistanceX", -1, 1, 56, 3, Q("6.369 mm")),
    Sketcher.Constraint("DistanceX", 58, 3, -1, 1, Q("6.369 mm")),
    Sketcher.Constraint("DistanceX", -1, 1, 61, 3, Q("9.4302 mm")),
    Sketcher.Constraint("DistanceX", -1, 1, 63, 3, Q("7.6794 mm")),
    Sketcher.Constraint("DistanceY", 63, 3, -1, 1, Q("1.6262 mm")),
    Sketcher.Constraint("DistanceY", -1, 1, 65, 3, Q("1.6262 mm")),
    Sketcher.Constraint("DistanceX", -1, 1, 67, 3, Q("9.43 mm")),
    Sketcher.Constraint("DistanceX", 69, 3, -1, 1, Q("7.6794 mm")),
    Sketcher.Constraint("DistanceY", -1, 1, 69, 3, Q("1.6262 mm")),
    Sketcher.Constraint("DistanceY", 71, 3, -1, 1, Q("1.6262 mm")),
    Sketcher.Constraint("DistanceX", 73, 3, -1, 1, Q("9.43 mm")),
    Sketcher.Constraint("DistanceX", 75, 3, -1, 1, Q("9.4302 mm")),
    Sketcher.Constraint("DistanceX", -1, 1, 18, 1, Q("1.6262 mm")),
    Sketcher.Constraint("DistanceX", 52, 1, -1, 1, Q("1.6262 mm")),
    Sketcher.Constraint("DistanceY", 63, 1, -1, 1, Q("1.6262 mm")),
    Sketcher.Constraint("DistanceY", -1, 1, 69, 1, Q("1.6262 mm")),
])
pad1 = body.newObject("PartDesign::Pad", "Pad")
pad1.Profile = sketch1
pad1.Length = Q("12 in")
pad1.Reversed = True

doc.recompute()
